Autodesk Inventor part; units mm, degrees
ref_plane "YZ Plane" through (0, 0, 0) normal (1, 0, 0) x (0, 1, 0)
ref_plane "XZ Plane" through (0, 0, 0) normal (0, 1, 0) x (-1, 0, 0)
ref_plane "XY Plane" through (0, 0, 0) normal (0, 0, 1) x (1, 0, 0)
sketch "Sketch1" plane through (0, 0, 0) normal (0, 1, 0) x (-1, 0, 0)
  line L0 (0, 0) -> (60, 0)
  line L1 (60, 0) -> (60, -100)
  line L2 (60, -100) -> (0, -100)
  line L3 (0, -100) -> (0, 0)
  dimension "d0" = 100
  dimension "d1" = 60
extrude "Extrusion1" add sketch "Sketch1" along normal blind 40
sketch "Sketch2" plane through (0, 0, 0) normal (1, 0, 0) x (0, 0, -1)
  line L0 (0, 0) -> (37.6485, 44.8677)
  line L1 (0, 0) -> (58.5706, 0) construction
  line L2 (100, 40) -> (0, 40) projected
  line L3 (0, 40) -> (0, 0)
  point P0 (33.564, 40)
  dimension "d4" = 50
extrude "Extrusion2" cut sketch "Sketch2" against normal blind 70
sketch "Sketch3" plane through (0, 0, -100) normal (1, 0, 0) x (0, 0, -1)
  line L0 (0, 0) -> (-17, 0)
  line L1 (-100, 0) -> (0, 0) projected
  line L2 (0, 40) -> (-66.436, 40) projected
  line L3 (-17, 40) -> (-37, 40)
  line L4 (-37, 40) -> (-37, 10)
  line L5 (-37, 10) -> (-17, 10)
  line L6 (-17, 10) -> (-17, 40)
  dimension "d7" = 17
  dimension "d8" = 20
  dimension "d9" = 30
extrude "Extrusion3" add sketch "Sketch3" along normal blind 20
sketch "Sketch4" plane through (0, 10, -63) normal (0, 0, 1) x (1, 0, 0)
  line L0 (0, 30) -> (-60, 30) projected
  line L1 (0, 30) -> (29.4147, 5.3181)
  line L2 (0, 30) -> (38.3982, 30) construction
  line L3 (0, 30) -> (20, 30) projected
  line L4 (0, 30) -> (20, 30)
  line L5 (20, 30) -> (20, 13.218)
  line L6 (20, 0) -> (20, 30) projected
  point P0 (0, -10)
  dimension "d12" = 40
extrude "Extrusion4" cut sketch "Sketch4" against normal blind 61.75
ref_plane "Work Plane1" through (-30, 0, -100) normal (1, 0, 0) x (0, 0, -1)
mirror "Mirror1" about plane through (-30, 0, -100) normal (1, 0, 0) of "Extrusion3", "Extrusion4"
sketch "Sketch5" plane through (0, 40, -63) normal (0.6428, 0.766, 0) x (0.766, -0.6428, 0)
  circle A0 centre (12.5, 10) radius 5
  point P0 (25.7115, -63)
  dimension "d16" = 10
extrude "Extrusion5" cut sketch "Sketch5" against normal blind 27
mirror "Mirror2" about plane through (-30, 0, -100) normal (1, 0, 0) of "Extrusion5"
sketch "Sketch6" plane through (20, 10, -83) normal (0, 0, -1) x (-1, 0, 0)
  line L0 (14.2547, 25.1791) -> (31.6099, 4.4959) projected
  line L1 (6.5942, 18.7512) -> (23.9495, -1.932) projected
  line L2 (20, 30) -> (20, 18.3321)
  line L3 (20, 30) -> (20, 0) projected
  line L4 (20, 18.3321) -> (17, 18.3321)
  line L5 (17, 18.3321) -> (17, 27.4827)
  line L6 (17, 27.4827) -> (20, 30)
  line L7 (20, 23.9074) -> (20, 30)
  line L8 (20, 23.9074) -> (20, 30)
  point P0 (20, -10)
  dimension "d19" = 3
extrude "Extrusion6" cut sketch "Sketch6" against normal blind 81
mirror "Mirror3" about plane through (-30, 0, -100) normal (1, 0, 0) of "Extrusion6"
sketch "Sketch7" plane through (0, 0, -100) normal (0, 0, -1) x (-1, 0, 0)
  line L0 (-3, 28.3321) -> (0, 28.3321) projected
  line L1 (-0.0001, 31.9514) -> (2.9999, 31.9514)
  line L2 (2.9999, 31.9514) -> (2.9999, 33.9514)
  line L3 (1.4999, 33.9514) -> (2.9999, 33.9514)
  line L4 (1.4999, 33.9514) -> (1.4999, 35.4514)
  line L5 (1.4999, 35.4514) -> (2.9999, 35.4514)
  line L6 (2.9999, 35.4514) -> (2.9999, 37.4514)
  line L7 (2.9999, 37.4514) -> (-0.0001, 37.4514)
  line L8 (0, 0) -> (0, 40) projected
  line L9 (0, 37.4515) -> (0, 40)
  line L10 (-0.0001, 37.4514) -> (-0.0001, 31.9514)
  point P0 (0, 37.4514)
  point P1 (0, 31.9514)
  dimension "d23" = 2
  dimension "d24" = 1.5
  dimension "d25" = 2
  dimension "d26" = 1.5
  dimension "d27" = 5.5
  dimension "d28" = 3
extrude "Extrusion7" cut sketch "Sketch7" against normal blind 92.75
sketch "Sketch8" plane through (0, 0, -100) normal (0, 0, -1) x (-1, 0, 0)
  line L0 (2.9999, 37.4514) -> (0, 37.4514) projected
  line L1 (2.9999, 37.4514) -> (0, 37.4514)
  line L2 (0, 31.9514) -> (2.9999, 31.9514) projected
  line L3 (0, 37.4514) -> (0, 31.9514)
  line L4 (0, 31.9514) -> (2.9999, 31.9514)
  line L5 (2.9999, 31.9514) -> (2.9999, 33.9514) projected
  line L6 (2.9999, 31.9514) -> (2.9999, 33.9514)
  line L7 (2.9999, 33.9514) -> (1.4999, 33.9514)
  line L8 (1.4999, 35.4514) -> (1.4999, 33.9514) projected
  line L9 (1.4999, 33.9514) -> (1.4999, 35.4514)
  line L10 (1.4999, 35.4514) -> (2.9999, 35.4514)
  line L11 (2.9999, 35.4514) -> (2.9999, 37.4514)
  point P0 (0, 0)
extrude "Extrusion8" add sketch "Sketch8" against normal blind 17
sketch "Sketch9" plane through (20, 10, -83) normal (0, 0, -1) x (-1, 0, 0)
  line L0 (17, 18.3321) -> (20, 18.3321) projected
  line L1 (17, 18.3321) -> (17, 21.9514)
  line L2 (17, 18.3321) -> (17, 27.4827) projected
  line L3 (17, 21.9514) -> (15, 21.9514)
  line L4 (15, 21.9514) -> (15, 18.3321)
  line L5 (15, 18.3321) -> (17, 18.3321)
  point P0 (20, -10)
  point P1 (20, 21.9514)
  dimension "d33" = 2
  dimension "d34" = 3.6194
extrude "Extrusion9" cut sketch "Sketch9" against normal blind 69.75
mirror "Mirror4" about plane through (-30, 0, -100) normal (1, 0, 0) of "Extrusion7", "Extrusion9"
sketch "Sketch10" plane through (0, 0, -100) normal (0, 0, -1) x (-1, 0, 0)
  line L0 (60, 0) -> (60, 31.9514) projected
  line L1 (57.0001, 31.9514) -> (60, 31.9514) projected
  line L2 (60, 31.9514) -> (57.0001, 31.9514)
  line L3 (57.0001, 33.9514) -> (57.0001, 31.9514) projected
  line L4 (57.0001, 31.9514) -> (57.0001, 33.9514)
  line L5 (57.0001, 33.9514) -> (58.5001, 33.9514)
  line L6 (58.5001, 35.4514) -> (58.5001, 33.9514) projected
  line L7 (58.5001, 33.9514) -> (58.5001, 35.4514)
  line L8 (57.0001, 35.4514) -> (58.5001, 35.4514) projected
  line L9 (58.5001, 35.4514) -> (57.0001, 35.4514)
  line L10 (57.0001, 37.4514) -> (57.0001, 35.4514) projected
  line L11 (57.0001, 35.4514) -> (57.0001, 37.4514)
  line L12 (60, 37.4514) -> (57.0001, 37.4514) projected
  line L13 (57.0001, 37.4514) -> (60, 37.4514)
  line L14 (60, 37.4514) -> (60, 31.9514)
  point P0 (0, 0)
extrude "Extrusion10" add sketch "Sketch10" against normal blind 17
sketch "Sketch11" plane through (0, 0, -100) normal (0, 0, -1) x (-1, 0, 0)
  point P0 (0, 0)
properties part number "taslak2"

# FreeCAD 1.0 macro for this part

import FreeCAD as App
import Part
import Sketcher

V = App.Vector
Q = App.Units.Quantity

doc = App.newDocument("Part")
params = doc.addObject("Spreadsheet::Sheet", "Params")
for row, (alias, value) in enumerate([
    ("sketch1_width", "60 mm"),
    ("sketch1_height", "100 mm"),
    ("pad1_length", "40 mm"),
    ("sketch2_width", "40 mm"),
    ("pocket1_length", "70 mm"),
    ("sketch3_width", "30 mm"),
    ("sketch3_height", "20 mm"),
    ("pad2_length", "20 mm"),
    ("sketch4_width", "20 mm"),
    ("pocket2_length", "61.75 mm"),
    ("sketch5_diameter", "10 mm"),
    ("pocket3_length", "27 mm"),
    ("sketch6_width", "3 mm"),
    ("pocket4_length", "81 mm"),
    ("sketch7_width", "3 mm"),
    ("sketch7_height", "2 mm"),
    ("sketch7_width2", "1.5 mm"),
    ("pocket5_length", "92.75 mm"),
    ("sketch8_width", "3 mm"),
    ("sketch8_height", "2 mm"),
    ("sketch8_width2", "1.5 mm"),
    ("pad3_length", "17 mm"),
    ("sketch9_width", "2 mm"),
    ("pocket6_length", "69.75 mm"),
    ("sketch10_width", "3 mm"),
    ("sketch10_height", "2 mm"),
    ("sketch10_width2", "1.5 mm"),
    ("pad4_length", "17 mm"),
], start=1):
    params.set(f"A{row}", alias)
    params.set(f"B{row}", "=" + value)
    params.setAlias(f"B{row}", alias)

body = doc.addObject("PartDesign::Body", "Body")

# Sketch on XZ plane
sketch1 = body.newObject("Sketcher::SketchObject", "Sketch")
sketch1.AttachmentSupport = (doc.getObject("XZ_Plane"), [""])
sketch1.MapMode = "FlatFace"
sketch1.addGeometry([
    Part.LineSegment(V(-60, 0, 0), V(0, 0, 0)),
    Part.LineSegment(V(0, 0, 0), V(0, -100, 0)),
    Part.LineSegment(V(0, -100, 0), V(-60, -100, 0)),
    Part.LineSegment(V(-60, -100, 0), V(-60, 0, 0)),
], False)
sketch1.addConstraint([
    Sketcher.Constraint("Coincident", 0, 2, 1, 1),
    Sketcher.Constraint("Coincident", 1, 2, 2, 1),
    Sketcher.Constraint("Coincident", 2, 2, 3, 1),
    Sketcher.Constraint("Coincident", 3, 2, 0, 1),
    Sketcher.Constraint("Horizontal", 0),
    Sketcher.Constraint("Vertical", 1),
    Sketcher.Constraint("Horizontal", 2),
    Sketcher.Constraint("Vertical", 3),
    Sketcher.Constraint("Coincident", 0, 2, -1, 1),
    Sketcher.Constraint("DistanceX", 0, 1, 0, 2, Q("60 mm")),
    Sketcher.Constraint("DistanceY", 1, 2, 1, 1, Q("100 mm")),
])
sketch1.setExpression("Constraints[9]", "Params.sketch1_width")
sketch1.setExpression("Constraints[10]", "Params.sketch1_height")
pad1 = body.newObject("PartDesign::Pad", "Pad")
pad1.Profile = sketch1
pad1.setExpression("Length", "Params.pad1_length")
pad1.Reversed = True

# Sketch on YZ plane
sketch2 = body.newObject("Sketcher::SketchObject", "Sketch001")
sketch2.AttachmentSupport = (doc.getObject("YZ_Plane"), [""])
sketch2.MapMode = "FlatFace"
sketch2.addGeometry([
    Part.LineSegment(V(40, 0, 0), V(0, 0, 0)),
    Part.LineSegment(V(0, 0, 0), V(40, -34, 0)),
    Part.LineSegment(V(40, -34, 0), V(40, 0, 0)),
], False)
sketch2.addConstraint([
    Sketcher.Constraint("Coincident", 0, 2, 1, 1),
    Sketcher.Constraint("Coincident", 1, 2, 2, 1),
    Sketcher.Constraint("Coincident", 2, 2, 0, 1),
    Sketcher.Constraint("Horizontal", 0),
    Sketcher.Constraint("Vertical", 2),
    Sketcher.Constraint("Coincident", 0, 2, -1, 1),
    Sketcher.Constraint("DistanceX", 0, 2, 0, 1, Q("40 mm")),
    Sketcher.Constraint("Angle", 1, Q("-40 deg")),
])
sketch2.setExpression("Constraints[6]", "Params.sketch2_width")
pocket1 = body.newObject("PartDesign::Pocket", "Pocket")
pocket1.Profile = sketch2
pocket1.setExpression("Length", "Params.pocket1_length")

# Sketch on YZ plane
sketch3 = body.newObject("Sketcher::SketchObject", "Sketch002")
sketch3.AttachmentSupport = (doc.getObject("YZ_Plane"), [""])
sketch3.MapMode = "FlatFace"
sketch3.addGeometry([
    Part.LineSegment(V(10, -83, 0), V(40, -83, 0)),
    Part.LineSegment(V(40, -83, 0), V(40, -63, 0)),
    Part.LineSegment(V(40, -63, 0), V(10, -63, 0)),
    Part.LineSegment(V(10, -63, 0), V(10, -83, 0)),
], False)
sketch3.addConstraint([
    Sketcher.Constraint("Coincident", 0, 2, 1, 1),
    Sketcher.Constraint("Coincident", 1, 2, 2, 1),
    Sketcher.Constraint("Coincident", 2, 2, 3, 1),
    Sketcher.Constraint("Coincident", 3, 2, 0, 1),
    Sketcher.Constraint("Horizontal", 0),
    Sketcher.Constraint("Vertical", 1),
    Sketcher.Constraint("Horizontal", 2),
    Sketcher.Constraint("Vertical", 3),
    Sketcher.Constraint("DistanceX", 0, 1, 0, 2, Q("30 mm")),
    Sketcher.Constraint("DistanceY", 1, 1, 1, 2, Q("20 mm")),
    Sketcher.Constraint("DistanceX", -1, 1, 0, 2, Q("40 mm")),
    Sketcher.Constraint("DistanceY", 0, 2, -1, 1, Q("83 mm")),
])
sketch3.setExpression("Constraints[8]", "Params.sketch3_width")
sketch3.setExpression("Constraints[9]", "Params.sketch3_height")
pad2 = body.newObject("PartDesign::Pad", "Pad001")
pad2.Profile = sketch3
pad2.setExpression("Length", "Params.pad2_length")

# Sketch on XY plane
sketch4 = body.newObject("Sketcher::SketchObject", "Sketch003")
sketch4.AttachmentSupport = (doc.getObject("XY_Plane"), [""])
sketch4.MapMode = "FlatFace"
sketch4.AttachmentOffset = App.Placement(V(0, 0, -63), App.Rotation())
sketch4.addGeometry([
    Part.LineSegment(V(20, 40, 0), V(0, 40, 0)),
    Part.LineSegment(V(0, 40, 0), V(20, 23, 0)),
    Part.LineSegment(V(20, 23, 0), V(20, 40, 0)),
], False)
sketch4.addConstraint([
    Sketcher.Constraint("Coincident", 0, 2, 1, 1),
    Sketcher.Constraint("Coincident", 1, 2, 2, 1),
    Sketcher.Constraint("Coincident", 2, 2, 0, 1),
    Sketcher.Constraint("Horizontal", 0),
    Sketcher.Constraint("Vertical", 2),
    Sketcher.Constraint("PointOnObject", 0, 2, -2),
    Sketcher.Constraint("Angle", 1, Q("-40 deg")),
    Sketcher.Constraint("DistanceY", -1, 1, 0, 2, Q("40 mm")),
    Sketcher.Constraint("DistanceX", 0, 2, 0, 1, Q("20 mm")),
])
sketch4.setExpression("Constraints[8]", "Params.sketch4_width")
pocket2 = body.newObject("PartDesign::Pocket", "Pocket001")
pocket2.Profile = sketch4
pocket2.setExpression("Length", "Params.pocket2_length")
doc.recompute()

datumplane = body.newObject("PartDesign::Plane", "DatumPlane")
datumplane.AttachmentSupport = (doc.getObject("YZ_Plane"), [""])
datumplane.MapMode = "FlatFace"
datumplane.AttachmentOffset = App.Placement(V(0, 0, -30), App.Rotation())
mirrored = body.newObject("PartDesign::Mirrored", "Mirrored")
mirrored.Originals = [pad2, pocket2]
mirrored.MirrorPlane = (datumplane, [""])
body.Tip = mirrored

# Sketch on an angled plane
sketch5 = body.newObject("Sketcher::SketchObject", "Sketch004")
sketch5.Placement = App.Placement(V(0, 40, -63), App.Rotation(V(0.766044443, -0.64278761, 0), V(0, 0, -1), V(0.64278761, 0.766044443, 0), "ZXY"))
sketch5.addGeometry(Part.Circle(V(13, 10, 0), V(0, 0, 1), 5), False)
sketch5.addConstraint([
    Sketcher.Constraint("Diameter", 0, Q("10 mm")),
    Sketcher.Constraint("DistanceY", -1, 1, 0, 3, Q("10 mm")),
    Sketcher.Constraint("DistanceX", -1, 1, 0, 3, Q("12.5 mm")),
])
sketch5.setExpression("Constraints[0]", "Params.sketch5_diameter")
pocket3 = body.newObject("PartDesign::Pocket", "Pocket002")
pocket3.Profile = sketch5
pocket3.setExpression("Length", "Params.pocket3_length")
doc.recompute()

datumplane2 = body.newObject("PartDesign::Plane", "DatumPlane001")
datumplane2.AttachmentSupport = (doc.getObject("YZ_Plane"), [""])
datumplane2.MapMode = "FlatFace"
datumplane2.AttachmentOffset = App.Placement(V(0, 0, -30), App.Rotation())
mirrored2 = body.newObject("PartDesign::Mirrored", "Mirrored001")
mirrored2.Originals = [pocket3]
mirrored2.MirrorPlane = (datumplane2, [""])
body.Tip = mirrored2

# Sketch on XY plane
sketch6 = body.newObject("Sketcher::SketchObject", "Sketch005")
sketch6.AttachmentSupport = (doc.getObject("XY_Plane"), [""])
sketch6.MapMode = "FlatFace"
sketch6.AttachmentOffset = App.Placement(V(0, 0, -83), App.Rotation())
sketch6.addGeometry([
    Part.LineSegment(V(3, 37.5, 0), V(3, 28.3, 0)),
    Part.LineSegment(V(3, 28.3, 0), V(0, 28.3, 0)),
    Part.LineSegment(V(0, 28.3, 0), V(0, 40, 0)),
    Part.LineSegment(V(0, 40, 0), V(3, 37.5, 0)),
], False)
sketch6.addConstraint([
    Sketcher.Constraint("Coincident", 0, 2, 1, 1),
    Sketcher.Constraint("Coincident", 1, 2, 2, 1),
    Sketcher.Constraint("Coincident", 2, 2, 3, 1),
    Sketcher.Constraint("Coincident", 3, 2, 0, 1),
    Sketcher.Constraint("Vertical", 0),
    Sketcher.Constraint("Horizontal", 1),
    Sketcher.Constraint("Vertical", 2),
    Sketcher.Constraint("PointOnObject", 1, 2, -2),
    Sketcher.Constraint("DistanceX", 1, 2, 1, 1, Q("3 mm")),
    Sketcher.Constraint("Angle", 3, Q("-40 deg")),
    Sketcher.Constraint("DistanceY", -1, 1, 2, 2, Q("40 mm")),
    Sketcher.Constraint("DistanceY", 2, 1, 2, 2, Q("11.668 mm")),
])
sketch6.setExpression("Constraints[8]", "Params.sketch6_width")
pocket4 = body.newObject("PartDesign::Pocket", "Pocket003")
pocket4.Profile = sketch6
pocket4.setExpression("Length", "Params.pocket4_length")
pocket4.Reversed = True
doc.recompute()

datumplane3 = body.newObject("PartDesign::Plane", "DatumPlane002")
datumplane3.AttachmentSupport = (doc.getObject("YZ_Plane"), [""])
datumplane3.MapMode = "FlatFace"
datumplane3.AttachmentOffset = App.Placement(V(0, 0, -30), App.Rotation())
mirrored3 = body.newObject("PartDesign::Mirrored", "Mirrored002")
mirrored3.Originals = [pocket4]
mirrored3.MirrorPlane = (datumplane3, [""])
body.Tip = mirrored3

# Sketch on XY plane
sketch7 = body.newObject("Sketcher::SketchObject", "Sketch006")
sketch7.AttachmentSupport = (doc.getObject("XY_Plane"), [""])
sketch7.MapMode = "FlatFace"
sketch7.AttachmentOffset = App.Placement(V(0, 0, -100), App.Rotation())
sketch7.addGeometry([
    Part.LineSegment(V(0, 37.5, 0), V(0, 32, 0)),  # 0
    Part.LineSegment(V(0, 32, 0), V(-3, 32, 0)),  # 1
    Part.LineSegment(V(-3, 32, 0), V(-3, 34, 0)),  # 2
    Part.LineSegment(V(-3, 34, 0), V(-1.5, 34, 0)),  # 3
    Part.LineSegment(V(-1.5, 34, 0), V(-1.5, 35.5, 0)),  # 4
    Part.LineSegment(V(-1.5, 35.5, 0), V(-3, 35.5, 0)),  # 5
    Part.LineSegment(V(-3, 35.5, 0), V(-3, 37.5, 0)),  # 6
    Part.LineSegment(V(-3, 37.5, 0), V(0, 37.5, 0)),  # 7
], False)
sketch7.addConstraint([
    Sketcher.Constraint("Coincident", 0, 2, 1, 1),
    Sketcher.Constraint("Coincident", 1, 2, 2, 1),
    Sketcher.Constraint("Coincident", 2, 2, 3, 1),
    Sketcher.Constraint("Coincident", 3, 2, 4, 1),
    Sketcher.Constraint("Coincident", 4, 2, 5, 1),
    Sketcher.Constraint("Coincident", 5, 2, 6, 1),
    Sketcher.Constraint("Coincident", 6, 2, 7, 1),
    Sketcher.Constraint("Coincident", 7, 2, 0, 1),
    Sketcher.Constraint("Vertical", 0),
    Sketcher.Constraint("Horizontal", 1),
    Sketcher.Constraint("Vertical", 2),
    Sketcher.Constraint("Horizontal", 3),
    Sketcher.Constraint("Vertical", 4),
    Sketcher.Constraint("Horizontal", 5),
    Sketcher.Constraint("Vertical", 6),
    Sketcher.Constraint("Horizontal", 7),
    Sketcher.Constraint("PointOnObject", 0, 2, -2),
    Sketcher.Constraint("Vertical", 2, 2, 5, 2),
    Sketcher.Constraint("Equal", 5, 4),
    Sketcher.Constraint("Equal", 2, 6),
    Sketcher.Constraint("DistanceX", 1, 2, 1, 1, Q("3 mm")),
    Sketcher.Constraint("DistanceY", 2, 1, 2, 2, Q("2 mm")),
    Sketcher.Constraint("DistanceX", 3, 1, 3, 2, Q("1.5 mm")),
    Sketcher.Constraint("DistanceY", -1, 1, 0, 2, Q("31.9514 mm")),
])
sketch7.setExpression("Constraints[20]", "Params.sketch7_width")
sketch7.setExpression("Constraints[21]", "Params.sketch7_height")
sketch7.setExpression("Constraints[22]", "Params.sketch7_width2")
pocket5 = body.newObject("PartDesign::Pocket", "Pocket004")
pocket5.Profile = sketch7
pocket5.setExpression("Length", "Params.pocket5_length")
pocket5.Reversed = True

# Sketch on XY plane
sketch8 = body.newObject("Sketcher::SketchObject", "Sketch007")
sketch8.AttachmentSupport = (doc.getObject("XY_Plane"), [""])
sketch8.MapMode = "FlatFace"
sketch8.AttachmentOffset = App.Placement(V(0, 0, -100), App.Rotation())
sketch8.addGeometry([
    Part.LineSegment(V(-3, 35.5, 0), V(-3, 37.5, 0)),  # 0
    Part.LineSegment(V(-3, 37.5, 0), V(0, 37.5, 0)),  # 1
    Part.LineSegment(V(0, 37.5, 0), V(0, 32, 0)),  # 2
    Part.LineSegment(V(0, 32, 0), V(-3, 32, 0)),  # 3
    Part.LineSegment(V(-3, 32, 0), V(-3, 34, 0)),  # 4
    Part.LineSegment(V(-3, 34, 0), V(-1.5, 34, 0)),  # 5
    Part.LineSegment(V(-1.5, 34, 0), V(-1.5, 35.5, 0)),  # 6
    Part.LineSegment(V(-1.5, 35.5, 0), V(-3, 35.5, 0)),  # 7
], False)
sketch8.addConstraint([
    Sketcher.Constraint("Coincident", 0, 2, 1, 1),
    Sketcher.Constraint("Coincident", 1, 2, 2, 1),
    Sketcher.Constraint("Coincident", 2, 2, 3, 1),
    Sketcher.Constraint("Coincident", 3, 2, 4, 1),
    Sketcher.Constraint("Coincident", 4, 2, 5, 1),
    Sketcher.Constraint("Coincident", 5, 2, 6, 1),
    Sketcher.Constraint("Coincident", 6, 2, 7, 1),
    Sketcher.Constraint("Coincident", 7, 2, 0, 1),
    Sketcher.Constraint("Vertical", 0),
    Sketcher.Constraint("Horizontal", 1),
    Sketcher.Constraint("Vertical", 2),
    Sketcher.Constraint("Horizontal", 3),
    Sketcher.Constraint("Vertical", 4),
    Sketcher.Constraint("Horizontal", 5),
    Sketcher.Constraint("Vertical", 6),
    Sketcher.Constraint("Horizontal", 7),
    Sketcher.Constraint("PointOnObject", 1, 2, -2),
    Sketcher.Constraint("Vertical", 0, 2, 3, 2),
    Sketcher.Constraint("Equal", 0, 4),
    Sketcher.Constraint("Equal", 7, 6),
    Sketcher.Constraint("DistanceX", 1, 1, 1, 2, Q("3 mm")),
    Sketcher.Constraint("DistanceY", 0, 1, 0, 2, Q("2 mm")),
    Sketcher.Constraint("DistanceX", 5, 1, 5, 2, Q("1.5 mm")),
    Sketcher.Constraint("DistanceY", -1, 1, 0, 2, Q("37.4514 mm")),
])
sketch8.setExpression("Constraints[20]", "Params.sketch8_width")
sketch8.setExpression("Constraints[21]", "Params.sketch8_height")
sketch8.setExpression("Constraints[22]", "Params.sketch8_width2")
pad3 = body.newObject("PartDesign::Pad", "Pad002")
pad3.Profile = sketch8
pad3.setExpression("Length", "Params.pad3_length")

# Sketch on XY plane
sketch9 = body.newObject("Sketcher::SketchObject", "Sketch008")
sketch9.AttachmentSupport = (doc.getObject("XY_Plane"), [""])
sketch9.MapMode = "FlatFace"
sketch9.AttachmentOffset = App.Placement(V(0, 0, -83), App.Rotation())
sketch9.addGeometry([
    Part.LineSegment(V(5, 28.3, 0), V(3, 28.3, 0)),
    Part.LineSegment(V(3, 28.3, 0), V(3, 32, 0)),
    Part.LineSegment(V(3, 32, 0), V(5, 32, 0)),
    Part.LineSegment(V(5, 32, 0), V(5, 28.3, 0)),
], False)
sketch9.addConstraint([
    Sketcher.Constraint("Coincident", 0, 2, 1, 1),
    Sketcher.Constraint("Coincident", 1, 2, 2, 1),
    Sketcher.Constraint("Coincident", 2, 2, 3, 1),
    Sketcher.Constraint("Coincident", 3, 2, 0, 1),
    Sketcher.Constraint("Horizontal", 0),
    Sketcher.Constraint("Vertical", 1),
    Sketcher.Constraint("Horizontal", 2),
    Sketcher.Constraint("Vertical", 3),
    Sketcher.Constraint("DistanceX", 0, 2, 0, 1, Q("2 mm")),
    Sketcher.Constraint("DistanceY", 1, 1, 1, 2, Q("3.6193 mm")),
    Sketcher.Constraint("DistanceX", -1, 1, 0, 2, Q("3 mm")),
    Sketcher.Constraint("DistanceY", -1, 1, 0, 2, Q("28.332 mm")),
])
sketch9.setExpression("Constraints[8]", "Params.sketch9_width")
pocket6 = body.newObject("PartDesign::Pocket", "Pocket005")
pocket6.Profile = sketch9
pocket6.setExpression("Length", "Params.pocket6_length")
pocket6.Reversed = True
doc.recompute()

datumplane4 = body.newObject("PartDesign::Plane", "DatumPlane003")
datumplane4.AttachmentSupport = (doc.getObject("YZ_Plane"), [""])
datumplane4.MapMode = "FlatFace"
datumplane4.AttachmentOffset = App.Placement(V(0, 0, -30), App.Rotation())
mirrored4 = body.newObject("PartDesign::Mirrored", "Mirrored003")
mirrored4.Originals = [pocket5, pocket6]
mirrored4.MirrorPlane = (datumplane4, [""])
body.Tip = mirrored4

# Sketch on XY plane
sketch10 = body.newObject("Sketcher::SketchObject", "Sketch009")
sketch10.AttachmentSupport = (doc.getObject("XY_Plane"), [""])
sketch10.MapMode = "FlatFace"
sketch10.AttachmentOffset = App.Placement(V(0, 0, -100), App.Rotation())
sketch10.addGeometry([
    Part.LineSegment(V(-57, 34, 0), V(-57, 32, 0)),  # 0
    Part.LineSegment(V(-57, 32, 0), V(-60, 32, 0)),  # 1
    Part.LineSegment(V(-60, 32, 0), V(-60, 37.5, 0)),  # 2
    Part.LineSegment(V(-60, 37.5, 0), V(-57, 37.5, 0)),  # 3
    Part.LineSegment(V(-57, 37.5, 0), V(-57, 35.5, 0)),  # 4
    Part.LineSegment(V(-57, 35.5, 0), V(-58.5, 35.5, 0)),  # 5
    Part.LineSegment(V(-58.5, 35.5, 0), V(-58.5, 34, 0)),  # 6
    Part.LineSegment(V(-58.5, 34, 0), V(-57, 34, 0)),  # 7
], False)
sketch10.addConstraint([
    Sketcher.Constraint("Coincident", 0, 2, 1, 1),
    Sketcher.Constraint("Coincident", 1, 2, 2, 1),
    Sketcher.Constraint("Coincident", 2, 2, 3, 1),
    Sketcher.Constraint("Coincident", 3, 2, 4, 1),
    Sketcher.Constraint("Coincident", 4, 2, 5, 1),
    Sketcher.Constraint("Coincident", 5, 2, 6, 1),
    Sketcher.Constraint("Coincident", 6, 2, 7, 1),
    Sketcher.Constraint("Coincident", 7, 2, 0, 1),
    Sketcher.Constraint("Vertical", 0),
    Sketcher.Constraint("Horizontal", 1),
    Sketcher.Constraint("Vertical", 2),
    Sketcher.Constraint("Horizontal", 3),
    Sketcher.Constraint("Vertical", 4),
    Sketcher.Constraint("Horizontal", 5),
    Sketcher.Constraint("Vertical", 6),
    Sketcher.Constraint("Horizontal", 7),
    Sketcher.Constraint("Vertical", 0, 2, 3, 2),
    Sketcher.Constraint("Equal", 0, 4),
    Sketcher.Constraint("Equal", 7, 6),
    Sketcher.Constraint("DistanceX", 1, 2, 1, 1, Q("3 mm")),
    Sketcher.Constraint("DistanceY", 0, 2, 0, 1, Q("2 mm")),
    Sketcher.Constraint("DistanceX", 5, 2, 5, 1, Q("1.5 mm")),
    Sketcher.Constraint("DistanceX", 0, 2, -1, 1, Q("57 mm")),
    Sketcher.Constraint("DistanceY", -1, 1, 0, 2, Q("31.9514 mm")),
])
sketch10.setExpression("Constraints[19]", "Params.sketch10_width")
sketch10.setExpression("Constraints[20]", "Params.sketch10_height")
sketch10.setExpression("Constraints[21]", "Params.sketch10_width2")
pad4 = body.newObject("PartDesign::Pad", "Pad003")
pad4.Profile = sketch10
pad4.setExpression("Length", "Params.pad4_length")

doc.recompute()
